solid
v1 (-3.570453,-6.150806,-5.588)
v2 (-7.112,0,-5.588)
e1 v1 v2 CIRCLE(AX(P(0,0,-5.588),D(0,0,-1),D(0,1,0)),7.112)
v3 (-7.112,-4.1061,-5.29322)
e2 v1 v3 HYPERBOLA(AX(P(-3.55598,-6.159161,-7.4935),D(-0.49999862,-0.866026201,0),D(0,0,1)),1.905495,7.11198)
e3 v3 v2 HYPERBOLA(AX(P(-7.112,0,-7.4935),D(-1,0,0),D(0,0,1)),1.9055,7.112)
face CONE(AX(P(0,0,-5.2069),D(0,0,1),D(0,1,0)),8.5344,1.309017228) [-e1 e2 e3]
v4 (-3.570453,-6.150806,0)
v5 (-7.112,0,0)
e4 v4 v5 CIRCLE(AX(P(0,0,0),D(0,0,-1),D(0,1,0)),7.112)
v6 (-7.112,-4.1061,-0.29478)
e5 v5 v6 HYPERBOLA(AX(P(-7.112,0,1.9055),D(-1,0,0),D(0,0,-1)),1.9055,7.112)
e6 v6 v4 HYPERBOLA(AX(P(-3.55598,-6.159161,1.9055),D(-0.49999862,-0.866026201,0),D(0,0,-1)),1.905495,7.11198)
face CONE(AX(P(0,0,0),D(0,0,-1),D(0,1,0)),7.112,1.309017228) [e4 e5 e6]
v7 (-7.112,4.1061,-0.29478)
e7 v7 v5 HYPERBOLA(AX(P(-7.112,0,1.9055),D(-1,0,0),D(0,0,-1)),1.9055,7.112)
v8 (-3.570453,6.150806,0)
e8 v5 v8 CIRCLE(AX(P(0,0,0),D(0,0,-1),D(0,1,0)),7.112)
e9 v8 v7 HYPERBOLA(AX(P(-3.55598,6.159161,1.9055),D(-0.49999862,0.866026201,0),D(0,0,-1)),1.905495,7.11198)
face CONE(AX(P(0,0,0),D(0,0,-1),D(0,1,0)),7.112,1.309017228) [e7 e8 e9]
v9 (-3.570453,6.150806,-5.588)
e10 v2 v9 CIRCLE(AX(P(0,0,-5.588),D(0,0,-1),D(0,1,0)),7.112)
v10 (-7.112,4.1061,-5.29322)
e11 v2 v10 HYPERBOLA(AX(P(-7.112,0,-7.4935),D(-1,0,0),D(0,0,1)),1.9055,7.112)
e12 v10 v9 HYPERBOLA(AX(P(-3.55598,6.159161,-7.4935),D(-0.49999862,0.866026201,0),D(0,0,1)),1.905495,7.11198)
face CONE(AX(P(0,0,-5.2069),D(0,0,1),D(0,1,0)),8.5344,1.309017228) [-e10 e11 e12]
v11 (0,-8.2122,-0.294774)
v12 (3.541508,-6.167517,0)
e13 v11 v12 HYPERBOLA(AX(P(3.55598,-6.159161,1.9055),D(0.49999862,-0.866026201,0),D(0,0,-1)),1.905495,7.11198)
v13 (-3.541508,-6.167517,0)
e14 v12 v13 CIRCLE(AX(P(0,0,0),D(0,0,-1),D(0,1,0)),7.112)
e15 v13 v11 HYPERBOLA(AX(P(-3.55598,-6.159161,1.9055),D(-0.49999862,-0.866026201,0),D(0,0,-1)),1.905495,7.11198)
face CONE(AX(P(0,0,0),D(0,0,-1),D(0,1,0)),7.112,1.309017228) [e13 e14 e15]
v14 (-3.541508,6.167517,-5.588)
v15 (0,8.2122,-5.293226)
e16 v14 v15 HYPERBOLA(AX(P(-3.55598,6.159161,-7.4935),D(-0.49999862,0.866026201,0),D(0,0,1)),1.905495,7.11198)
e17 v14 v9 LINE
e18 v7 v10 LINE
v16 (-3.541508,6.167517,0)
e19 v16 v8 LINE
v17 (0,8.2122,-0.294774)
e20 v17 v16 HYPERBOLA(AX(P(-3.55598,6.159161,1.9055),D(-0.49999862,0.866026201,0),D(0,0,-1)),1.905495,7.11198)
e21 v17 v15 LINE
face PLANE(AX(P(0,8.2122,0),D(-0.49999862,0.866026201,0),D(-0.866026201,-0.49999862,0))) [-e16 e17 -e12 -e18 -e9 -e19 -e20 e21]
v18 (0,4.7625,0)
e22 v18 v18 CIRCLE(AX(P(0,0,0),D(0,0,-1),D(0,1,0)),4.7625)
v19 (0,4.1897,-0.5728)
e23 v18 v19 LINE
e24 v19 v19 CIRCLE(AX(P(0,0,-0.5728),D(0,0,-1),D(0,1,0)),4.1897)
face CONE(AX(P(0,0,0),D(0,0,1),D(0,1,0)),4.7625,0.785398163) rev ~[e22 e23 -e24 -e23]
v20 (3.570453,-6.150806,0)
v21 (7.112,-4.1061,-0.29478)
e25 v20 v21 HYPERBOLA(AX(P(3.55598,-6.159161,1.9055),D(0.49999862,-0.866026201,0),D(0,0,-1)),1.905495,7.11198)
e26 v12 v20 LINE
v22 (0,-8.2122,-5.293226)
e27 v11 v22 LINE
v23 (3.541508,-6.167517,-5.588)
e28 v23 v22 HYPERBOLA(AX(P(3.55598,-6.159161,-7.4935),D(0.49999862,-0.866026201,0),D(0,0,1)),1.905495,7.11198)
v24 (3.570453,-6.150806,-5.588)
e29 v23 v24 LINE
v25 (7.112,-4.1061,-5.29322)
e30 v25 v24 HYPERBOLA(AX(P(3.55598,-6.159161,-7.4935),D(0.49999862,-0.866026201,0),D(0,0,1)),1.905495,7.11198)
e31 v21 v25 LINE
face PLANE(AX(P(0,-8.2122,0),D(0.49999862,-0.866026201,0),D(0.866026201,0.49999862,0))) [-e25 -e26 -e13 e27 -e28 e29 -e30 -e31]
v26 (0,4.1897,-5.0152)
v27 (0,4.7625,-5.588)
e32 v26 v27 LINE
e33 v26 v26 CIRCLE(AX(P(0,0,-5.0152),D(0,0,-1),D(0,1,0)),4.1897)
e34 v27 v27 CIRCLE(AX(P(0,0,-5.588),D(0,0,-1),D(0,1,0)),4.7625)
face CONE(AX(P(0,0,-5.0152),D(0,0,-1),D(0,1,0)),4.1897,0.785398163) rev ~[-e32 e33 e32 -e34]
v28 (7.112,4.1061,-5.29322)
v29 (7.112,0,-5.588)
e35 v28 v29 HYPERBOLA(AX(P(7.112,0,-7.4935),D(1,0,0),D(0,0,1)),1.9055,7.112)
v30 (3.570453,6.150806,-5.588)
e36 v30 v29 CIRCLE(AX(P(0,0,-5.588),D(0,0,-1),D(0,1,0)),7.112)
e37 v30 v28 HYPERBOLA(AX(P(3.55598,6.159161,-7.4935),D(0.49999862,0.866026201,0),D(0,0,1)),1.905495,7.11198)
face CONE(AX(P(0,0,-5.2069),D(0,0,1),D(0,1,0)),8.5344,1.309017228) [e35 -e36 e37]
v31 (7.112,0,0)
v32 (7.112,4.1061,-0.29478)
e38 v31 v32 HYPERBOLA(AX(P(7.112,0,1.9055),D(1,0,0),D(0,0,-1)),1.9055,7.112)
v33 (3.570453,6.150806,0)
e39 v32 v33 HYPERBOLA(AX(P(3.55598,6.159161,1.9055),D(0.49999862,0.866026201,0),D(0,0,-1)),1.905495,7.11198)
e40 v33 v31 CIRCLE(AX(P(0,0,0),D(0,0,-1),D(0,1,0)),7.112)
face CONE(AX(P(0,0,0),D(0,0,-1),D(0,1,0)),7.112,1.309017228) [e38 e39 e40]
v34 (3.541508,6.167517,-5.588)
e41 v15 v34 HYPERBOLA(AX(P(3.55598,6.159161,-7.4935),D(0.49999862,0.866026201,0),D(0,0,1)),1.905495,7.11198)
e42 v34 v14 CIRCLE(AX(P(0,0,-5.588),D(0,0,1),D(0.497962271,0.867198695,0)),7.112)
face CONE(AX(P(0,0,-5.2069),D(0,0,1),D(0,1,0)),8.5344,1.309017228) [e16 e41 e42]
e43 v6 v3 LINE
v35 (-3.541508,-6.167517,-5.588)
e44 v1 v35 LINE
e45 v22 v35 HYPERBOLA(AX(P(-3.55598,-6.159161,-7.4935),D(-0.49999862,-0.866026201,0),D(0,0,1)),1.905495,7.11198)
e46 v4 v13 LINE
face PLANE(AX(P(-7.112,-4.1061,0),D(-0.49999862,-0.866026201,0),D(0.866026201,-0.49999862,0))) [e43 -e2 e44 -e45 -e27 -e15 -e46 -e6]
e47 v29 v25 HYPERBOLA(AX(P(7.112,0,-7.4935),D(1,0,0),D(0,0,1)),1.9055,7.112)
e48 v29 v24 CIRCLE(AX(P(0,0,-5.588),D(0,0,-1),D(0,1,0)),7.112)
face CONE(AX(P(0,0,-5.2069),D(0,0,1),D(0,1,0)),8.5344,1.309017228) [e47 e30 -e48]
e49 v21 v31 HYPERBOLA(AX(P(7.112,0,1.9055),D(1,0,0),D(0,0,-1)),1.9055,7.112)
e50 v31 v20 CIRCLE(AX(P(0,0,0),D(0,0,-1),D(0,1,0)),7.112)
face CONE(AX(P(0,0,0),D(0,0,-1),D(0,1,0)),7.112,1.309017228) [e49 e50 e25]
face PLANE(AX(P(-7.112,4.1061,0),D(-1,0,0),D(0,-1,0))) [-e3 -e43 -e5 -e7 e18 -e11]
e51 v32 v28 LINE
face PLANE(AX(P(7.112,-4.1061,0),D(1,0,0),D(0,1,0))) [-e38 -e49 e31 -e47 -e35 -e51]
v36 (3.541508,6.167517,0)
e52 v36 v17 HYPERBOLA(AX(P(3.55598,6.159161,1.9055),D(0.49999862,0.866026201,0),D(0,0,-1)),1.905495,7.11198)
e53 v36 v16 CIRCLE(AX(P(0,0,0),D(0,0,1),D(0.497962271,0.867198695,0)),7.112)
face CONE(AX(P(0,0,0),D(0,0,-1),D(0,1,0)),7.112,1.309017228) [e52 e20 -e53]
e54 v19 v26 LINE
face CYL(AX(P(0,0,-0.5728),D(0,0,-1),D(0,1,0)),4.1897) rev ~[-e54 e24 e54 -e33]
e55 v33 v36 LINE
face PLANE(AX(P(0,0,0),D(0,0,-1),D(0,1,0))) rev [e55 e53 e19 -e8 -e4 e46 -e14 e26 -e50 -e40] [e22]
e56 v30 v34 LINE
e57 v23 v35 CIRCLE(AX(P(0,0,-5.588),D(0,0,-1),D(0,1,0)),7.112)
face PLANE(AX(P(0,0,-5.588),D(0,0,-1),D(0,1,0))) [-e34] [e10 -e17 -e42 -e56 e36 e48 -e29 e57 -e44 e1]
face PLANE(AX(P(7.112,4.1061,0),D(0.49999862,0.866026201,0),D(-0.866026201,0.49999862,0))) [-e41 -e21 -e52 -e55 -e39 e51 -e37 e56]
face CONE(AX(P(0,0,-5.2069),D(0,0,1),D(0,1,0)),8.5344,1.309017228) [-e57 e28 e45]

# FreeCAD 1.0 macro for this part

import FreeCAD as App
import Part
import Sketcher

V = App.Vector
Q = App.Units.Quantity

doc = App.newDocument("Part")
params = doc.addObject("Spreadsheet::Sheet", "Params")
for row, (alias, value) in enumerate([
    ("sketch1_width", "0.28 in"),
    ("sketch1_height", "0.22 in"),
    ("sketch1_height2", "0.19 in"),
    ("revolution_angle", "360 deg"),
    ("sketch2_width", "1.12 in"),
    ("pocket1_length", "0.22 in"),
    ("sketch3_height", "0.22 in"),
    ("sketch3_width", "0.1875 in"),
    ("groove_angle", "360 deg"),
], start=1):
    params.set(f"A{row}", alias)
    params.set(f"B{row}", "=" + value)
    params.setAlias(f"B{row}", alias)

body = doc.addObject("PartDesign::Body", "Body")

# Sketch on YZ plane
sketch1 = body.newObject("Sketcher::SketchObject", "Sketch")
sketch1.AttachmentSupport = (doc.getObject("YZ_Plane"), [""])
sketch1.MapMode = "FlatFace"
sketch1.addGeometry([
    Part.LineSegment(V(0, 0, 0), V(0, -5.6, 0)),  # 0
    Part.LineSegment(V(0, -5.6, 0), V(7.1, -5.6, 0)),  # 1
    Part.LineSegment(V(7.1, -5.6, 0), V(8.5, -5.2, 0)),  # 2
    Part.LineSegment(V(8.5, -5.2, 0), V(8.5, -0.4, 0)),  # 3
    Part.LineSegment(V(8.5, -0.4, 0), V(7.1, 0, 0)),  # 4
    Part.LineSegment(V(7.1, 0, 0), V(0, 0, 0)),  # 5
], False)
sketch1.addConstraint([
    Sketcher.Constraint("Coincident", 0, 2, 1, 1),
    Sketcher.Constraint("Coincident", 1, 2, 2, 1),
    Sketcher.Constraint("Coincident", 2, 2, 3, 1),
    Sketcher.Constraint("Coincident", 3, 2, 4, 1),
    Sketcher.Constraint("Coincident", 4, 2, 5, 1),
    Sketcher.Constraint("Coincident", 5, 2, 0, 1),
    Sketcher.Constraint("Vertical", 0),
    Sketcher.Constraint("Horizontal", 1),
    Sketcher.Constraint("Vertical", 3),
    Sketcher.Constraint("Horizontal", 5),
    Sketcher.Constraint("Coincident", 5, 2, -1, 1),
    Sketcher.Constraint("Vertical", 1, 2, 4, 2),
    Sketcher.Constraint("Equal", 2, 4),
    Sketcher.Constraint("Angle", 2, Q("14.9988 deg")),
    Sketcher.Constraint("DistanceX", 1, 1, 1, 2, Q("0.28 in")),
    Sketcher.Constraint("DistanceY", 0, 2, 0, 1, Q("0.22 in")),
    Sketcher.Constraint("DistanceY", 3, 1, 3, 2, Q("0.19 in")),
])
sketch1.setExpression("Constraints[14]", "Params.sketch1_width")
sketch1.setExpression("Constraints[15]", "Params.sketch1_height")
sketch1.setExpression("Constraints[16]", "Params.sketch1_height2")
revolution = body.newObject("PartDesign::Revolution", "Revolution")
revolution.Profile = sketch1
revolution.ReferenceAxis = (sketch1, ["V_Axis"])
revolution.setExpression("Angle", "Params.revolution_angle")

# Sketch on XY plane
sketch2 = body.newObject("Sketcher::SketchObject", "Sketch001")
sketch2.AttachmentSupport = (doc.getObject("XY_Plane"), [""])
sketch2.MapMode = "FlatFace"
sketch2.addGeometry([
    Part.LineSegment(V(14, 14, 0), V(-14, 14, 0)),  # 0
    Part.LineSegment(V(-14, 14, 0), V(-14, -14, 0)),  # 1
    Part.LineSegment(V(-14, -14, 0), V(14, -14, 0)),  # 2
    Part.LineSegment(V(14, -14, 0), V(14, 14, 0)),  # 3
    Part.LineSegment(V(-7, -4, 0), V(-7, 4, 0)),  # 4
    Part.LineSegment(V(-7, 4, 0), V(0, 8, 0)),  # 5
    Part.LineSegment(V(0, 8, 0), V(7, 4, 0)),  # 6
    Part.LineSegment(V(7, 4, 0), V(7, -4, 0)),  # 7
    Part.LineSegment(V(7, -4, 0), V(0, -8, 0)),  # 8
    Part.LineSegment(V(0, -8, 0), V(-7, -4, 0)),  # 9
], False)
sketch2.addConstraint([
    Sketcher.Constraint("Coincident", 0, 2, 1, 1),
    Sketcher.Constraint("Coincident", 1, 2, 2, 1),
    Sketcher.Constraint("Coincident", 2, 2, 3, 1),
    Sketcher.Constraint("Coincident", 3, 2, 0, 1),
    Sketcher.Constraint("Coincident", 4, 2, 5, 1),
    Sketcher.Constraint("Coincident", 5, 2, 6, 1),
    Sketcher.Constraint("Coincident", 6, 2, 7, 1),
    Sketcher.Constraint("Coincident", 7, 2, 8, 1),
    Sketcher.Constraint("Coincident", 8, 2, 9, 1),
    Sketcher.Constraint("Coincident", 9, 2, 4, 1),
    Sketcher.Constraint("Horizontal", 0),
    Sketcher.Constraint("Vertical", 1),
    Sketcher.Constraint("Horizontal", 2),
    Sketcher.Constraint("Vertical", 3),
    Sketcher.Constraint("Vertical", 4),
    Sketcher.Constraint("Vertical", 7),
    Sketcher.Constraint("Symmetric", 0, 2, 2, 2, -1, 1),
    Sketcher.Constraint("Symmetric", 4, 2, 7, 2, -1, 1),
    Sketcher.Constraint("Symmetric", 5, 2, 8, 2, -1, 1),
    Sketcher.Constraint("PointOnObject", 5, 2, -2),
    Sketcher.Constraint("Parallel", 6, 9),
    Sketcher.Constraint("Horizontal", 4, 2, 6, 2),
    Sketcher.Constraint("Equal", 2, 1),
    Sketcher.Constraint("Angle", 5, Q("30 deg")),
    Sketcher.Constraint("DistanceX", 0, 2, 0, 1, Q("1.12 in")),
    Sketcher.Constraint("DistanceX", 4, 2, -1, 1, Q("0.28 in")),
    Sketcher.Constraint("DistanceY", 4, 1, 4, 2, Q("8.2122 mm")),
])
sketch2.setExpression("Constraints[24]", "Params.sketch2_width")
pocket1 = body.newObject("PartDesign::Pocket", "Pocket")
pocket1.Profile = sketch2
pocket1.setExpression("Length", "Params.pocket1_length")

# Sketch on YZ plane
sketch3 = body.newObject("Sketcher::SketchObject", "Sketch002")
sketch3.AttachmentSupport = (doc.getObject("YZ_Plane"), [""])
sketch3.MapMode = "FlatFace"
sketch3.addGeometry([
    Part.LineSegment(V(0, 0, 0), V(0, -5.6, 0)),  # 0
    Part.LineSegment(V(0, -5.6, 0), V(4.8, -5.6, 0)),  # 1
    Part.LineSegment(V(4.8, -5.6, 0), V(4.2, -5, 0)),  # 2
    Part.LineSegment(V(4.2, -5, 0), V(4.2, -0.6, 0)),  # 3
    Part.LineSegment(V(4.2, -0.6, 0), V(4.8, 0, 0)),  # 4
    Part.LineSegment(V(4.8, 0, 0), V(0, 0, 0)),  # 5
], False)
sketch3.addConstraint([
    Sketcher.Constraint("Coincident", 0, 2, 1, 1),
    Sketcher.Constraint("Coincident", 1, 2, 2, 1),
    Sketcher.Constraint("Coincident", 2, 2, 3, 1),
    Sketcher.Constraint("Coincident", 3, 2, 4, 1),
    Sketcher.Constraint("Coincident", 4, 2, 5, 1),
    Sketcher.Constraint("Coincident", 5, 2, 0, 1),
    Sketcher.Constraint("Vertical", 0),
    Sketcher.Constraint("Horizontal", 1),
    Sketcher.Constraint("Vertical", 3),
    Sketcher.Constraint("Horizontal", 5),
    Sketcher.Constraint("Coincident", 5, 2, -1, 1),
    Sketcher.Constraint("Perpendicular", 2, 4),
    Sketcher.Constraint("Vertical", 1, 2, 4, 2),
    Sketcher.Constraint("Equal", 2, 4),
    Sketcher.Constraint("DistanceY", 0, 2, 0, 1, Q("0.22 in")),
    Sketcher.Constraint("DistanceX", 1, 1, 1, 2, Q("0.1875 in")),
    Sketcher.Constraint("DistanceY", 3, 1, 3, 2, Q("0.1749 in")),
])
sketch3.setExpression("Constraints[14]", "Params.sketch3_height")
sketch3.setExpression("Constraints[15]", "Params.sketch3_width")
groove = body.newObject("PartDesign::Groove", "Groove")
groove.Profile = sketch3
groove.ReferenceAxis = (sketch3, ["V_Axis"])
groove.setExpression("Angle", "Params.groove_angle")

doc.recompute()
